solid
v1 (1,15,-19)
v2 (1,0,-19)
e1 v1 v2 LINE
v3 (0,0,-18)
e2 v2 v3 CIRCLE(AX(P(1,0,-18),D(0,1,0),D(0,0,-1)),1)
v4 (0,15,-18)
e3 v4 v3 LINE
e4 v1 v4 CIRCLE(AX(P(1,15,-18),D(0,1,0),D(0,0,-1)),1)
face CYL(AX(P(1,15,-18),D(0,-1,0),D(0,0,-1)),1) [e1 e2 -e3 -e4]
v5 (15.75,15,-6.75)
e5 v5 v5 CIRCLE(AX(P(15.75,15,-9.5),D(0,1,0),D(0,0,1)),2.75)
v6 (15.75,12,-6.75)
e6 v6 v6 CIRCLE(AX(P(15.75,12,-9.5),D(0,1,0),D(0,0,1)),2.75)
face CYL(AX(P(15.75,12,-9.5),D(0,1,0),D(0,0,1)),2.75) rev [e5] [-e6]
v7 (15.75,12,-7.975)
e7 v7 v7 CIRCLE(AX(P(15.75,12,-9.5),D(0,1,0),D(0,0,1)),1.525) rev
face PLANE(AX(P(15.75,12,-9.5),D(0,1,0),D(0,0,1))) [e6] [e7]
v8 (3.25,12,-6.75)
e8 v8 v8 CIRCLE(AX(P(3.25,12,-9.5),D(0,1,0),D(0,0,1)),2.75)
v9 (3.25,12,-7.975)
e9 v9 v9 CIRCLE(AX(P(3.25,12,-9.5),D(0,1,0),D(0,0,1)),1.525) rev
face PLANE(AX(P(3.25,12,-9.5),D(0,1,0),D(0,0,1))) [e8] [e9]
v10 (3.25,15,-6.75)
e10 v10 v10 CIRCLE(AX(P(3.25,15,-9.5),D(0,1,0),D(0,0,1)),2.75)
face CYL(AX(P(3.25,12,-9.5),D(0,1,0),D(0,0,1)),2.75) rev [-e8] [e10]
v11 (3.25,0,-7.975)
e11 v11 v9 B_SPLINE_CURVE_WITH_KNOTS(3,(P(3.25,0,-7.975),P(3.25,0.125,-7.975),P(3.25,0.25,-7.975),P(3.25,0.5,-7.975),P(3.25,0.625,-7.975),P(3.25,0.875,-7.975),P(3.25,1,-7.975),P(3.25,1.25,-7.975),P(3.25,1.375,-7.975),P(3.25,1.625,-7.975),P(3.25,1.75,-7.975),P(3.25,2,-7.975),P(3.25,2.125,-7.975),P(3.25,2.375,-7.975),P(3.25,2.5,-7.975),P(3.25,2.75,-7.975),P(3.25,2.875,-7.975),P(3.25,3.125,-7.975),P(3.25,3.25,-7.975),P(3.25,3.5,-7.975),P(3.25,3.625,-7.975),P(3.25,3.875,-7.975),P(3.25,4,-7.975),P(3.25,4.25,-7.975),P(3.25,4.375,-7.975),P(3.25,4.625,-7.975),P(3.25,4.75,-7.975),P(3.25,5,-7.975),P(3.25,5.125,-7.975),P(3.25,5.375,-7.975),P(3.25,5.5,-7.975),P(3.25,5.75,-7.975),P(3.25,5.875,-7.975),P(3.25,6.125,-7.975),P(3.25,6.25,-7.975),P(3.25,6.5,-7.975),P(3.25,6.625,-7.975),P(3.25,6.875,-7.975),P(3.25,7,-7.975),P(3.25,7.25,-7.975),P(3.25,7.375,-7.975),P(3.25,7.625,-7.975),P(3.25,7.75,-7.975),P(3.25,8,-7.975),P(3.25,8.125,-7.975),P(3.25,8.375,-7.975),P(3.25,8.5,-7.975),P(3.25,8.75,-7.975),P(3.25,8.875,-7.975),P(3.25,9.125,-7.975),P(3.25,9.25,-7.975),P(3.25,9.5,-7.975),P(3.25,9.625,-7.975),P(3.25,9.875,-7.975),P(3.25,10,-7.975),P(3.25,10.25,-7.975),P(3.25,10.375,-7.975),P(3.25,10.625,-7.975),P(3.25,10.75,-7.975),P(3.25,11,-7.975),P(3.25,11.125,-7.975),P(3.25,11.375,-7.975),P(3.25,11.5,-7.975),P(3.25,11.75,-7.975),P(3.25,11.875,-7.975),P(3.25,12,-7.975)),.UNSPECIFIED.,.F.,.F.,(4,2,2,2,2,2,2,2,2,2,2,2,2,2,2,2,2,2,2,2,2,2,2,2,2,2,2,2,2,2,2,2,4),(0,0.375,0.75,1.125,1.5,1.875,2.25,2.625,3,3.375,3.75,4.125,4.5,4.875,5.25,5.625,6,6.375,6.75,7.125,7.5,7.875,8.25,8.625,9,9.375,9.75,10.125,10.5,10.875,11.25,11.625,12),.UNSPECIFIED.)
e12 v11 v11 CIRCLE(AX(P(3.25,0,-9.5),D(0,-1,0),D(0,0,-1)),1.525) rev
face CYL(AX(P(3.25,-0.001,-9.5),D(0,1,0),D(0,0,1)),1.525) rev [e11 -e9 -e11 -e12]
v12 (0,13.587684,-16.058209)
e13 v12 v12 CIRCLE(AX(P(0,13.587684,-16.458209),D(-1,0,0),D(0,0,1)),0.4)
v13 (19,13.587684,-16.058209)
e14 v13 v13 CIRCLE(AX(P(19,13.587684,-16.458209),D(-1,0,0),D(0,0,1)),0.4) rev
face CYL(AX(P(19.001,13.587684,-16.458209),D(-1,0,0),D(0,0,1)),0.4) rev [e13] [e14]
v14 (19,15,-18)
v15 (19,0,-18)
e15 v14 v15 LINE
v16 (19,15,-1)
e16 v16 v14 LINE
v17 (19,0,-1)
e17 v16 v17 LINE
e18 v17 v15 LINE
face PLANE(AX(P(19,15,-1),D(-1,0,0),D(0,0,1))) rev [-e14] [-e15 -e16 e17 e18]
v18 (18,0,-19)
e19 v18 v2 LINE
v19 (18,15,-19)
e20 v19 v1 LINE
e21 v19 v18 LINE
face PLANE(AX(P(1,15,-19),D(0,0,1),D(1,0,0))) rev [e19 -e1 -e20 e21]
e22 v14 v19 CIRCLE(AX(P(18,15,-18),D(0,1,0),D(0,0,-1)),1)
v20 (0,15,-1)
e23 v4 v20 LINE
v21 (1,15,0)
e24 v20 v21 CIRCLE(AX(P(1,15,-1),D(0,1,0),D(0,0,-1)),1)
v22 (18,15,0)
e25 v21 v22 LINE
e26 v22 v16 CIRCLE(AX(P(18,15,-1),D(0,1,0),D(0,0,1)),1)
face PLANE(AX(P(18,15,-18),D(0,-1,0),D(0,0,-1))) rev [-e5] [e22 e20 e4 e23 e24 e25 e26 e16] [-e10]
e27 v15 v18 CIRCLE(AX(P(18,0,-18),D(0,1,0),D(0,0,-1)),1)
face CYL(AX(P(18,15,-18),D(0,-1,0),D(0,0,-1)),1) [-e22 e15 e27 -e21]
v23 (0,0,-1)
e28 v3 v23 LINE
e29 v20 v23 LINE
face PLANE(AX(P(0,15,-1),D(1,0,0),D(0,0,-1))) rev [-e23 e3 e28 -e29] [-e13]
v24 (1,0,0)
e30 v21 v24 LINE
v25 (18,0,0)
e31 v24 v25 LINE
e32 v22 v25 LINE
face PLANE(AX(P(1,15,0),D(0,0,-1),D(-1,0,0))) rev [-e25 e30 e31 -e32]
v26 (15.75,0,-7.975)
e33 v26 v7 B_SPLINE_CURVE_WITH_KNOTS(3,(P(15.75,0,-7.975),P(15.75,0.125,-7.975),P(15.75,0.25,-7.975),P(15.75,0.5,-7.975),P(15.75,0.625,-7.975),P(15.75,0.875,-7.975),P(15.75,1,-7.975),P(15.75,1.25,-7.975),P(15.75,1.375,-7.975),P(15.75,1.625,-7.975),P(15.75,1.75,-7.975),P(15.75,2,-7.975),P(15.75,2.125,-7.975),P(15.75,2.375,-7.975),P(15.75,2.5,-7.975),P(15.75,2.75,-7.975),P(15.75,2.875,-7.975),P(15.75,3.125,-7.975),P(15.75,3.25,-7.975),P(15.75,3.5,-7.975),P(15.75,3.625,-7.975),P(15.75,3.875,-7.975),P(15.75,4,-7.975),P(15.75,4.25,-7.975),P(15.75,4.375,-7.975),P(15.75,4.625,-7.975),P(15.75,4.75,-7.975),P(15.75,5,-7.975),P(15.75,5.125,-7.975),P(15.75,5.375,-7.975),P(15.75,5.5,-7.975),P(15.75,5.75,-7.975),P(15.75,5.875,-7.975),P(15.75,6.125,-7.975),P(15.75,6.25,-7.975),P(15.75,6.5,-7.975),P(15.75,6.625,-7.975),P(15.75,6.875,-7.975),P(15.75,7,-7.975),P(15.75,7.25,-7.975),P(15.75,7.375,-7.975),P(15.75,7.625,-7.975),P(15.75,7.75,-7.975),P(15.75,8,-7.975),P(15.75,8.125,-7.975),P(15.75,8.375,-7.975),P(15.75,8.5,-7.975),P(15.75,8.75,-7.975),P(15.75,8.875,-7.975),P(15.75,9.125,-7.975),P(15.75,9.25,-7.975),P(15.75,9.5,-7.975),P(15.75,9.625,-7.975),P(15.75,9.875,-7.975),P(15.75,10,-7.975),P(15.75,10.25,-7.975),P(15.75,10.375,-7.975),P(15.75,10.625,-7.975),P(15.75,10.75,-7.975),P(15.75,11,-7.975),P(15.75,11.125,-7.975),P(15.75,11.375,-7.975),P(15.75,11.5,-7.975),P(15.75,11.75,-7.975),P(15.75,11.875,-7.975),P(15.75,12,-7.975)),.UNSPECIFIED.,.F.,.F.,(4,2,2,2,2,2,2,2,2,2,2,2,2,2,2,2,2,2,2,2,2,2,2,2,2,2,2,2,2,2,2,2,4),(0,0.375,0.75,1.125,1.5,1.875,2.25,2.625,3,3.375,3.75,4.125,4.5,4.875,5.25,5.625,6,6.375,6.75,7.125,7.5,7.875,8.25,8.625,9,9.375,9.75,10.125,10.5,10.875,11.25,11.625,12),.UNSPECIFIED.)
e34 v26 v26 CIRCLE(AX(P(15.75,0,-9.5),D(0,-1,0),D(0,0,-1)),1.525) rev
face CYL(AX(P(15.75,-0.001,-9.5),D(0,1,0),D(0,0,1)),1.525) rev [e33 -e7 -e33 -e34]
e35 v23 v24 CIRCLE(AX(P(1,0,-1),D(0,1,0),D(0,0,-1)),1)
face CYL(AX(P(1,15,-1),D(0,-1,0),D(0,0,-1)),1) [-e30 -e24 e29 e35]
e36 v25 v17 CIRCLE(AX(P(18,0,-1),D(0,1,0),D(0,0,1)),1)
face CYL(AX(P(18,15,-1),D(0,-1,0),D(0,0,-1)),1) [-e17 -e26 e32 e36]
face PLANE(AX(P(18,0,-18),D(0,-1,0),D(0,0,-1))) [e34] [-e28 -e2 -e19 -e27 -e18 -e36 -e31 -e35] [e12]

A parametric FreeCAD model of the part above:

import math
import FreeCAD as App
import Part
import Sketcher

V = App.Vector
Q = App.Units.Quantity

doc = App.newDocument("Part")
body = doc.addObject("PartDesign::Body", "Body")

# Sketch on XZ plane
sketch1 = body.newObject("Sketcher::SketchObject", "Sketch")
sketch1.AttachmentSupport = (doc.getObject("XZ_Plane"), [""])
sketch1.MapMode = "FlatFace"
sketch1.addGeometry(Part.LineSegment(V(1, 0, 0), V(18, 0, 0)), False)
sketch1.addGeometry(Part.ArcOfCircle(Part.Circle(V(18, -1, 0), V(0, 0, 1), 1), math.radians(0), math.radians(90)), False)
sketch1.addGeometry(Part.LineSegment(V(19, -1, 0), V(19, -18, 0)), False)
sketch1.addGeometry(Part.ArcOfCircle(Part.Circle(V(18, -18, 0), V(0, 0, 1), 1), math.radians(-90), math.radians(0)), False)
sketch1.addGeometry(Part.LineSegment(V(18, -19, 0), V(1, -19, 0)), False)
sketch1.addGeometry(Part.ArcOfCircle(Part.Circle(V(1, -18, 0), V(0, 0, 1), 1), math.radians(-180), math.radians(-90)), False)
sketch1.addGeometry(Part.LineSegment(V(0, -18, 0), V(0, -1, 0)), False)
sketch1.addGeometry(Part.ArcOfCircle(Part.Circle(V(1, -1, 0), V(0, 0, 1), 1), math.radians(90), math.radians(180)), False)
sketch1.addConstraint(Sketcher.Constraint("Tangent", 0, 2, 1, 2))
sketch1.addConstraint(Sketcher.Constraint("Tangent", 1, 1, 2, 1))
sketch1.addConstraint(Sketcher.Constraint("Tangent", 2, 2, 3, 2))
sketch1.addConstraint(Sketcher.Constraint("Tangent", 3, 1, 4, 1))
sketch1.addConstraint(Sketcher.Constraint("Tangent", 4, 2, 5, 2))
sketch1.addConstraint(Sketcher.Constraint("Tangent", 5, 1, 6, 1))
sketch1.addConstraint(Sketcher.Constraint("Tangent", 6, 2, 7, 2))
sketch1.addConstraint(Sketcher.Constraint("Tangent", 7, 1, 0, 1))
sketch1.addConstraint(Sketcher.Constraint("Horizontal", 0))
sketch1.addConstraint(Sketcher.Constraint("Vertical", 2))
sketch1.addConstraint(Sketcher.Constraint("Horizontal", 4))
sketch1.addConstraint(Sketcher.Constraint("Vertical", 6))
sketch1.addConstraint(Sketcher.Constraint("Equal", 1, 3))
sketch1.addConstraint(Sketcher.Constraint("Equal", 3, 5))
sketch1.addConstraint(Sketcher.Constraint("Equal", 5, 7))
sketch1.addConstraint(Sketcher.Constraint("PointOnObject", 0, 2, -1))
sketch1.addConstraint(Sketcher.Constraint("PointOnObject", 5, 1, -2))
sketch1.addConstraint(Sketcher.Constraint("Equal", 4, 2))
sketch1.addConstraint(Sketcher.Constraint("Radius", 1, Q("1 mm")))
sketch1.addConstraint(Sketcher.Constraint("DistanceX", 0, 1, 0, 2, Q("17 mm")))
pad1 = body.newObject("PartDesign::Pad", "Pad")
pad1.Profile = sketch1
pad1.Length = 15
pad1.Reversed = True

# Sketch on XZ plane
sketch2 = body.newObject("Sketcher::SketchObject", "Sketch001")
sketch2.AttachmentSupport = (doc.getObject("XZ_Plane"), [""])
sketch2.MapMode = "FlatFace"
sketch2.AttachmentOffset = App.Placement(V(0, 0, -15), App.Rotation())
sketch2.addGeometry(Part.Circle(V(3.2, -9.5, 0), V(0, 0, 1), 1.5), False)
sketch2.addConstraint(Sketcher.Constraint("Diameter", 0, Q("3.05 mm")))
sketch2.addConstraint(Sketcher.Constraint("DistanceY", 0, 3, -1, 1, Q("9.5 mm")))
sketch2.addConstraint(Sketcher.Constraint("DistanceX", -1, 1, 0, 3, Q("3.25 mm")))
pocket1 = body.newObject("PartDesign::Pocket", "Pocket")
pocket1.Profile = sketch2
pocket1.Type = "UpToFirst"
pocket1.Reversed = True

# Sketch on XZ plane
sketch3 = body.newObject("Sketcher::SketchObject", "Sketch002")
sketch3.AttachmentSupport = (doc.getObject("XZ_Plane"), [""])
sketch3.MapMode = "FlatFace"
sketch3.AttachmentOffset = App.Placement(V(0, 0, -15), App.Rotation())
sketch3.addGeometry(Part.Circle(V(15.8, -9.5, 0), V(0, 0, 1), 1.5), False)
sketch3.addConstraint(Sketcher.Constraint("Diameter", 0, Q("3.05 mm")))
sketch3.addConstraint(Sketcher.Constraint("DistanceY", 0, 3, -1, 1, Q("9.5 mm")))
sketch3.addConstraint(Sketcher.Constraint("DistanceX", -1, 1, 0, 3, Q("15.75 mm")))
pocket2 = body.newObject("PartDesign::Pocket", "Pocket001")
pocket2.Profile = sketch3
pocket2.Type = "UpToFirst"
pocket2.Reversed = True

# Sketch on XZ plane
sketch4 = body.newObject("Sketcher::SketchObject", "Sketch003")
sketch4.AttachmentSupport = (doc.getObject("XZ_Plane"), [""])
sketch4.MapMode = "FlatFace"
sketch4.AttachmentOffset = App.Placement(V(0, 0, -15), App.Rotation())
sketch4.addGeometry(Part.Circle(V(3.2, -9.5, 0), V(0, 0, 1), 2.8), False)
sketch4.addGeometry(Part.Circle(V(15.8, -9.5, 0), V(0, 0, 1), 2.8), False)
sketch4.addConstraint(Sketcher.Constraint("Equal", 0, 1))
sketch4.addConstraint(Sketcher.Constraint("Horizontal", 0, 3, 1, 3))
sketch4.addConstraint(Sketcher.Constraint("Diameter", 0, Q("5.5 mm")))
sketch4.addConstraint(Sketcher.Constraint("DistanceY", 0, 3, -1, 1, Q("9.5 mm")))
sketch4.addConstraint(Sketcher.Constraint("DistanceX", 0, 3, 1, 3, Q("12.5 mm")))
sketch4.addConstraint(Sketcher.Constraint("DistanceX", -1, 1, 0, 3, Q("3.25 mm")))
pocket3 = body.newObject("PartDesign::Pocket", "Pocket002")
pocket3.Profile = sketch4
pocket3.Length = 3
pocket3.Reversed = True

# Sketch on YZ plane
sketch5 = body.newObject("Sketcher::SketchObject", "Sketch004")
sketch5.AttachmentSupport = (doc.getObject("YZ_Plane"), [""])
sketch5.MapMode = "FlatFace"
sketch5.addGeometry(Part.Circle(V(13.59, -16.46, 0), V(0, 0, 1), 0.4), False)
sketch5.addConstraint(Sketcher.Constraint("Diameter", 0, Q("0.8 mm")))
sketch5.addConstraint(Sketcher.Constraint("DistanceY", 0, 3, -1, 1, Q("16.458209 mm")))
sketch5.addConstraint(Sketcher.Constraint("DistanceX", -1, 1, 0, 3, Q("13.587684 mm")))
pocket4 = body.newObject("PartDesign::Pocket", "Pocket003")
pocket4.Profile = sketch5
pocket4.Type = "UpToFirst"
pocket4.Reversed = True

doc.recompute()
